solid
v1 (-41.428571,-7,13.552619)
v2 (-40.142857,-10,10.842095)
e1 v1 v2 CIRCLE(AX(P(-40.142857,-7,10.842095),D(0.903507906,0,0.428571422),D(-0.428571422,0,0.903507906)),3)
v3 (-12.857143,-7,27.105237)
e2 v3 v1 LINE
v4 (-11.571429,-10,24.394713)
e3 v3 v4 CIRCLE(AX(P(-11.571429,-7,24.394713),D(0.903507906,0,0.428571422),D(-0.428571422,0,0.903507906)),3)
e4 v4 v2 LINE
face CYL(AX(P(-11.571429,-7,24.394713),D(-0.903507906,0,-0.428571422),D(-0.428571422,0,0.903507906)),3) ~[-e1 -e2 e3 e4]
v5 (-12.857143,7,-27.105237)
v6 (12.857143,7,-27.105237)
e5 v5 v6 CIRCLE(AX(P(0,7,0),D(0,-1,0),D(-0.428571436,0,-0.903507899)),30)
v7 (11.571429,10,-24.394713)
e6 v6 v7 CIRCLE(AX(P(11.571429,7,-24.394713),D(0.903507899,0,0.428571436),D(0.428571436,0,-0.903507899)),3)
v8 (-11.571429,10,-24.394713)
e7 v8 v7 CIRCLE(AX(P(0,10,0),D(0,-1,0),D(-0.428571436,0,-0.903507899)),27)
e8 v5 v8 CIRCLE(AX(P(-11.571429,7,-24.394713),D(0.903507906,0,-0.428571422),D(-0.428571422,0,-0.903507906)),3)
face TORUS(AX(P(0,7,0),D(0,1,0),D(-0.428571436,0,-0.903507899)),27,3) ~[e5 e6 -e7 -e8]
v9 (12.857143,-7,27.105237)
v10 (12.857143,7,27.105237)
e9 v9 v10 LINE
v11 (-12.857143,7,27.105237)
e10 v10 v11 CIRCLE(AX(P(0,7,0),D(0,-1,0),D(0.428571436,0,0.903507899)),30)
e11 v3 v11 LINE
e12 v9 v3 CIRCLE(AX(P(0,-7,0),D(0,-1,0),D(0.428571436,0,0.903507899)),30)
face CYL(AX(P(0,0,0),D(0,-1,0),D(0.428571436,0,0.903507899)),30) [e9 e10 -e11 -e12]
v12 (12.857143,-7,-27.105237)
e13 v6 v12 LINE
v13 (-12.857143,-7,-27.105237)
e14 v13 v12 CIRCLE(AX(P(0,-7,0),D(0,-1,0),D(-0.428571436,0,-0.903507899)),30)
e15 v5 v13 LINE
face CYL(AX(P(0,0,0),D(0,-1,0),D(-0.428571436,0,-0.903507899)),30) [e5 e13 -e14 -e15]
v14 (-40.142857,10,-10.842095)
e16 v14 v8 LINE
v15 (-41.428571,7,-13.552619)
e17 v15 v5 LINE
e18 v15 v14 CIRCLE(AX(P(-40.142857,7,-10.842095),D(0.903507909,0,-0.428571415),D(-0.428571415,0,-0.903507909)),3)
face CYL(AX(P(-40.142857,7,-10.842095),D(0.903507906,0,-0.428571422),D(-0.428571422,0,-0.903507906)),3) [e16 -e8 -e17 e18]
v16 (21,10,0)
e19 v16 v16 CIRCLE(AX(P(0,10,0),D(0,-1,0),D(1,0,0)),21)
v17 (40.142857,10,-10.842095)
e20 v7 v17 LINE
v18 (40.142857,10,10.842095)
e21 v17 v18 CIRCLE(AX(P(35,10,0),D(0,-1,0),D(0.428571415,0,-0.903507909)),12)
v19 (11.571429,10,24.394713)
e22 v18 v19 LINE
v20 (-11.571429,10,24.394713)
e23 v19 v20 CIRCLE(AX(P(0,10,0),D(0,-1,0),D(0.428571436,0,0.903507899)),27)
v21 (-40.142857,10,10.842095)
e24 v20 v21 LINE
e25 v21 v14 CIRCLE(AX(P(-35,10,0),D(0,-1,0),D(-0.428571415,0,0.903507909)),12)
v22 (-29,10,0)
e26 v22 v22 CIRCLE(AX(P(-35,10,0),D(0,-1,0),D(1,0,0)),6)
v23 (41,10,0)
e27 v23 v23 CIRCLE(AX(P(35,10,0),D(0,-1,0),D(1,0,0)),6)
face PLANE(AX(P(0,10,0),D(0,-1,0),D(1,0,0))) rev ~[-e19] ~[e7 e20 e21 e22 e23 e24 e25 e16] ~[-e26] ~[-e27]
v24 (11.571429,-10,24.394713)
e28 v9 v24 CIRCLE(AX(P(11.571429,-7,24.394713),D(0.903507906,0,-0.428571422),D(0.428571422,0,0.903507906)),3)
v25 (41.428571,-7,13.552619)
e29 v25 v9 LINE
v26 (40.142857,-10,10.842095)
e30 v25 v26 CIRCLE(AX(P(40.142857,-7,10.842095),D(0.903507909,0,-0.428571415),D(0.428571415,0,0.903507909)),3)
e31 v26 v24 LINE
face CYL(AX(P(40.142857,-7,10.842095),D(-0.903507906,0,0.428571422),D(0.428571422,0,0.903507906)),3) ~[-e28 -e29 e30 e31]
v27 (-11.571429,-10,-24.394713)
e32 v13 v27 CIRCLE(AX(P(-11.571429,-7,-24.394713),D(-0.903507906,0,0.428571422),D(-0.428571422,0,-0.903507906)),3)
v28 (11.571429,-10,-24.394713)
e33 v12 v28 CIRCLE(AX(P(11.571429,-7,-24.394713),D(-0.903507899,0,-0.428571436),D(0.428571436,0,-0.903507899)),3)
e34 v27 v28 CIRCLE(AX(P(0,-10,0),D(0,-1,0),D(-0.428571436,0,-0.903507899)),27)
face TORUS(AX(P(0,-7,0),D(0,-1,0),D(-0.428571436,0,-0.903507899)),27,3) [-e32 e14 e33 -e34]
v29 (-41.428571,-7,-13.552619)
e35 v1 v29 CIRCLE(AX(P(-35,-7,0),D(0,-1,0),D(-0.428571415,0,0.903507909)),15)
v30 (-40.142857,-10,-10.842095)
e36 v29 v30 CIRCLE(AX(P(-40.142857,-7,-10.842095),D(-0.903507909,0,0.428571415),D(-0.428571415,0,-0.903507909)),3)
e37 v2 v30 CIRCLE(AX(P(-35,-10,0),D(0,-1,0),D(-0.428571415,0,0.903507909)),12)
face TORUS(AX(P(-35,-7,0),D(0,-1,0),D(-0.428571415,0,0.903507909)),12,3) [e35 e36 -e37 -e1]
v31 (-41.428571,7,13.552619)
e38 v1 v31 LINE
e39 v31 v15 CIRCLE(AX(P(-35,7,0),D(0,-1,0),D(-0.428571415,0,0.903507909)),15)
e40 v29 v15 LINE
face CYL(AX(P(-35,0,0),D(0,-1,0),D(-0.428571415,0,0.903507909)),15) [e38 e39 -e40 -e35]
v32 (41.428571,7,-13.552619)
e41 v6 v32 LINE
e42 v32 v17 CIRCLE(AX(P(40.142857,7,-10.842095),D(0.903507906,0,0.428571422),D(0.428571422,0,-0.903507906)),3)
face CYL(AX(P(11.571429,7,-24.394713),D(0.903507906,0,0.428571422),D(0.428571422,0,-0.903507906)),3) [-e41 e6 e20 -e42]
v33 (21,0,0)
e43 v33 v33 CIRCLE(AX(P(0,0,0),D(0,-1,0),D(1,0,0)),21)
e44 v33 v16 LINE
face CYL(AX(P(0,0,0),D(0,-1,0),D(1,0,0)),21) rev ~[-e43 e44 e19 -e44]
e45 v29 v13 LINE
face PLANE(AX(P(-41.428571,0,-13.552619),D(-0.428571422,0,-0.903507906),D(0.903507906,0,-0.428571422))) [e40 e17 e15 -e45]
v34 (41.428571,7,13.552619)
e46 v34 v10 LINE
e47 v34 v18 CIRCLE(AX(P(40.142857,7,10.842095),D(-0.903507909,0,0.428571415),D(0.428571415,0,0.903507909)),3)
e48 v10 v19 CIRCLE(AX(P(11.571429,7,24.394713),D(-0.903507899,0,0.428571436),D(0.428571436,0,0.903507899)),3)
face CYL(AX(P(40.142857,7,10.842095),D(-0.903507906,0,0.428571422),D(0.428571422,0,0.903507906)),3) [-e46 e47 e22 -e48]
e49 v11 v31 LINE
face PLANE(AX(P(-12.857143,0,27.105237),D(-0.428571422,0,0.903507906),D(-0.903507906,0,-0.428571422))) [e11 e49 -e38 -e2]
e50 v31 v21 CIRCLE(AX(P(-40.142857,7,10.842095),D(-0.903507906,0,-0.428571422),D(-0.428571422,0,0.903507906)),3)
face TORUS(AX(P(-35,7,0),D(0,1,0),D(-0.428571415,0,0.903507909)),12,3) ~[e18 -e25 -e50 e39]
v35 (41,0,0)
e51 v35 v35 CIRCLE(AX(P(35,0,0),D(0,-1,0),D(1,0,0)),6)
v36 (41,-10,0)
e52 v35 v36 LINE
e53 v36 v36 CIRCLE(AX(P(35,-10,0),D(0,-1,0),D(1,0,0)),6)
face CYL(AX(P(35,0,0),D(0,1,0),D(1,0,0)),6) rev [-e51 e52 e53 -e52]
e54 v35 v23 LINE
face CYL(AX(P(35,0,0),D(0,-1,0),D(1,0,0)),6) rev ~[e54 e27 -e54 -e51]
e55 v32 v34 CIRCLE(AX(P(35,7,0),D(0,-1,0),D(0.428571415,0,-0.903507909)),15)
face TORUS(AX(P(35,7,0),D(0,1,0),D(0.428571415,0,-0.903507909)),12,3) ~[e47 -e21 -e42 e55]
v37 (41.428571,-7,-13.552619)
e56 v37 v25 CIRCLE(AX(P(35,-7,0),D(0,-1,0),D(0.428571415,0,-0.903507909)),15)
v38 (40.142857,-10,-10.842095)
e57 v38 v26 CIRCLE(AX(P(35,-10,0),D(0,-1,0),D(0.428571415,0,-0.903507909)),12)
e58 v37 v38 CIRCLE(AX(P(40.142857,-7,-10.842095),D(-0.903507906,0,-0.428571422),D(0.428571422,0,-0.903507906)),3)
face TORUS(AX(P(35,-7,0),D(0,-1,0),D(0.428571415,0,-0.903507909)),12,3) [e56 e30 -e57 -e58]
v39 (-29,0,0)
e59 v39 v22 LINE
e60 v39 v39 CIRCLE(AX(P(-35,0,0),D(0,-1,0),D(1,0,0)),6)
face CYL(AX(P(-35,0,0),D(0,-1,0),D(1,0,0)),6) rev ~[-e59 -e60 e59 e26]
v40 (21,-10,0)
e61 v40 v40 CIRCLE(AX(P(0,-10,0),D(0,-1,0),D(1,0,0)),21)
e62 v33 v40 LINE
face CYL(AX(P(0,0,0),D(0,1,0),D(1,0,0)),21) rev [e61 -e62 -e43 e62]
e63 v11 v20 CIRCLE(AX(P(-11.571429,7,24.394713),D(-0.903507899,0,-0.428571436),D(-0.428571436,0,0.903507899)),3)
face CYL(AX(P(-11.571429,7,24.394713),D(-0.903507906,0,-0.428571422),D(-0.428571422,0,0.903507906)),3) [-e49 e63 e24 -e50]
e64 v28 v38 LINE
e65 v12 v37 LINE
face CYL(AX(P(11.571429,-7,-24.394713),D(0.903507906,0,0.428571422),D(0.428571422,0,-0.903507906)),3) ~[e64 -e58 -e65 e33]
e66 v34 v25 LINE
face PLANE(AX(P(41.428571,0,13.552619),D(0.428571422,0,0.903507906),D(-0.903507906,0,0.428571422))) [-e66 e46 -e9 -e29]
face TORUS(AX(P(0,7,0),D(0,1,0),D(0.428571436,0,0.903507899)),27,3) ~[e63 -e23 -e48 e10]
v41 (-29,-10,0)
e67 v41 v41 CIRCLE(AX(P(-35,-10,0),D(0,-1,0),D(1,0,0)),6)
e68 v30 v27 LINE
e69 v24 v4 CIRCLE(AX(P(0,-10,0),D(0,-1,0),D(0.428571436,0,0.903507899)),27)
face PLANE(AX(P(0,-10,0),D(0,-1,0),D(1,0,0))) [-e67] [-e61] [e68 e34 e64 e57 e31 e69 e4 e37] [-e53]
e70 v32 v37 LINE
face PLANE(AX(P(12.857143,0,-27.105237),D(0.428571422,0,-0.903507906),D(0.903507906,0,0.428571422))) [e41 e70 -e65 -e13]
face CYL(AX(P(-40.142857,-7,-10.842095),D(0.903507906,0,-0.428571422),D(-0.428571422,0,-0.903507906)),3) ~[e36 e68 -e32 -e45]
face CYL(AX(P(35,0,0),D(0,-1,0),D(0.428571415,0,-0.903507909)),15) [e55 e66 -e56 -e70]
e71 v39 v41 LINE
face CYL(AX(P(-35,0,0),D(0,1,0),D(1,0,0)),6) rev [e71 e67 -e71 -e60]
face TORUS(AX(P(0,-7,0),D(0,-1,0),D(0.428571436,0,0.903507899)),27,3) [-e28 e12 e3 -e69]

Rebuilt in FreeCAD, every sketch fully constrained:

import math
import FreeCAD as App
import Part
import Sketcher

V = App.Vector
Q = App.Units.Quantity


def edges_at(feature, points):
    """Names of the edges that pass closest to the given points."""
    edges = feature.Shape.Edges
    near = lambda p: min(range(len(edges)), key=lambda i: edges[i].distToShape(Part.Vertex(*p))[0])
    return sorted({f"Edge{near(p) + 1}" for p in points})

doc = App.newDocument("Part")
body = doc.addObject("PartDesign::Body", "Body")

# Sketch on XZ plane
sketch1 = body.newObject("Sketcher::SketchObject", "Sketch")
sketch1.AttachmentSupport = (doc.getObject("XZ_Plane"), [""])
sketch1.MapMode = "FlatFace"
sketch1.addGeometry([
    Part.LineSegment(V(-41, -14, 0), V(-13, -27, 0)),  # 0
    Part.ArcOfCircle(Part.Circle(V(0, 0, 0), V(0, 0, 1), 30), math.radians(-115), math.radians(-65)),  # 1
    Part.LineSegment(V(13, -27, 0), V(41, -14, 0)),  # 2
    Part.ArcOfCircle(Part.Circle(V(35, 0, 0), V(0, 0, 1), 15), math.radians(-65), math.radians(65)),  # 3
    Part.LineSegment(V(41, 14, 0), V(13, 27, 0)),  # 4
    Part.ArcOfCircle(Part.Circle(V(0, 0, 0), V(0, 0, 1), 30), math.radians(65), math.radians(115)),  # 5
    Part.LineSegment(V(-13, 27, 0), V(-41, 14, 0)),  # 6
    Part.ArcOfCircle(Part.Circle(V(-35, 0, 0), V(0, 0, 1), 15), math.radians(115), math.radians(245)),  # 7
    Part.Circle(V(-35, 0, 0), V(0, 0, 1), 6),  # 8
    Part.Circle(V(0, 0, 0), V(0, 0, 1), 21),  # 9
    Part.Circle(V(35, 0, 0), V(0, 0, 1), 6),  # 10
], False)
sketch1.addConstraint([
    Sketcher.Constraint("Tangent", 0, 2, 1, 1),
    Sketcher.Constraint("Tangent", 1, 2, 2, 1),
    Sketcher.Constraint("Tangent", 2, 2, 3, 1),
    Sketcher.Constraint("Tangent", 3, 2, 4, 1),
    Sketcher.Constraint("Tangent", 4, 2, 5, 1),
    Sketcher.Constraint("Tangent", 5, 2, 6, 1),
    Sketcher.Constraint("Tangent", 6, 2, 7, 1),
    Sketcher.Constraint("Tangent", 7, 2, 0, 1),
    Sketcher.Constraint("Coincident", 1, 3, -1, 1),
    Sketcher.Constraint("Coincident", 5, 3, -1, 1),
    Sketcher.Constraint("Coincident", 9, 3, -1, 1),
    Sketcher.Constraint("Coincident", 8, 3, 7, 3),
    Sketcher.Constraint("Coincident", 10, 3, 3, 3),
    Sketcher.Constraint("Equal", 1, 5),
    Sketcher.Constraint("Equal", 3, 7),
    Sketcher.Constraint("Equal", 8, 10),
    Sketcher.Constraint("Symmetric", 3, 3, 7, 3, -1, 1),
    Sketcher.Constraint("PointOnObject", 3, 3, -1),
    Sketcher.Constraint("Diameter", 8, Q("12 mm")),
    Sketcher.Constraint("Diameter", 9, Q("42 mm")),
    Sketcher.Constraint("Radius", 1, Q("30 mm")),
    Sketcher.Constraint("Radius", 3, Q("15 mm")),
    Sketcher.Constraint("DistanceX", -1, 1, 3, 3, Q("35 mm")),
])
pad1 = body.newObject("PartDesign::Pad", "Pad")
pad1.Profile = sketch1
pad1.Type = "TwoLengths"
pad1.Length = 10
pad1.Length2 = 10
doc.recompute()

fillet = body.newObject("PartDesign::Fillet", "Fillet")
fillet.Base = (pad1, edges_at(pad1, [(-27.143, -10, 20.329), (0, 10, 30)]))
fillet.Radius = 3

doc.recompute()
